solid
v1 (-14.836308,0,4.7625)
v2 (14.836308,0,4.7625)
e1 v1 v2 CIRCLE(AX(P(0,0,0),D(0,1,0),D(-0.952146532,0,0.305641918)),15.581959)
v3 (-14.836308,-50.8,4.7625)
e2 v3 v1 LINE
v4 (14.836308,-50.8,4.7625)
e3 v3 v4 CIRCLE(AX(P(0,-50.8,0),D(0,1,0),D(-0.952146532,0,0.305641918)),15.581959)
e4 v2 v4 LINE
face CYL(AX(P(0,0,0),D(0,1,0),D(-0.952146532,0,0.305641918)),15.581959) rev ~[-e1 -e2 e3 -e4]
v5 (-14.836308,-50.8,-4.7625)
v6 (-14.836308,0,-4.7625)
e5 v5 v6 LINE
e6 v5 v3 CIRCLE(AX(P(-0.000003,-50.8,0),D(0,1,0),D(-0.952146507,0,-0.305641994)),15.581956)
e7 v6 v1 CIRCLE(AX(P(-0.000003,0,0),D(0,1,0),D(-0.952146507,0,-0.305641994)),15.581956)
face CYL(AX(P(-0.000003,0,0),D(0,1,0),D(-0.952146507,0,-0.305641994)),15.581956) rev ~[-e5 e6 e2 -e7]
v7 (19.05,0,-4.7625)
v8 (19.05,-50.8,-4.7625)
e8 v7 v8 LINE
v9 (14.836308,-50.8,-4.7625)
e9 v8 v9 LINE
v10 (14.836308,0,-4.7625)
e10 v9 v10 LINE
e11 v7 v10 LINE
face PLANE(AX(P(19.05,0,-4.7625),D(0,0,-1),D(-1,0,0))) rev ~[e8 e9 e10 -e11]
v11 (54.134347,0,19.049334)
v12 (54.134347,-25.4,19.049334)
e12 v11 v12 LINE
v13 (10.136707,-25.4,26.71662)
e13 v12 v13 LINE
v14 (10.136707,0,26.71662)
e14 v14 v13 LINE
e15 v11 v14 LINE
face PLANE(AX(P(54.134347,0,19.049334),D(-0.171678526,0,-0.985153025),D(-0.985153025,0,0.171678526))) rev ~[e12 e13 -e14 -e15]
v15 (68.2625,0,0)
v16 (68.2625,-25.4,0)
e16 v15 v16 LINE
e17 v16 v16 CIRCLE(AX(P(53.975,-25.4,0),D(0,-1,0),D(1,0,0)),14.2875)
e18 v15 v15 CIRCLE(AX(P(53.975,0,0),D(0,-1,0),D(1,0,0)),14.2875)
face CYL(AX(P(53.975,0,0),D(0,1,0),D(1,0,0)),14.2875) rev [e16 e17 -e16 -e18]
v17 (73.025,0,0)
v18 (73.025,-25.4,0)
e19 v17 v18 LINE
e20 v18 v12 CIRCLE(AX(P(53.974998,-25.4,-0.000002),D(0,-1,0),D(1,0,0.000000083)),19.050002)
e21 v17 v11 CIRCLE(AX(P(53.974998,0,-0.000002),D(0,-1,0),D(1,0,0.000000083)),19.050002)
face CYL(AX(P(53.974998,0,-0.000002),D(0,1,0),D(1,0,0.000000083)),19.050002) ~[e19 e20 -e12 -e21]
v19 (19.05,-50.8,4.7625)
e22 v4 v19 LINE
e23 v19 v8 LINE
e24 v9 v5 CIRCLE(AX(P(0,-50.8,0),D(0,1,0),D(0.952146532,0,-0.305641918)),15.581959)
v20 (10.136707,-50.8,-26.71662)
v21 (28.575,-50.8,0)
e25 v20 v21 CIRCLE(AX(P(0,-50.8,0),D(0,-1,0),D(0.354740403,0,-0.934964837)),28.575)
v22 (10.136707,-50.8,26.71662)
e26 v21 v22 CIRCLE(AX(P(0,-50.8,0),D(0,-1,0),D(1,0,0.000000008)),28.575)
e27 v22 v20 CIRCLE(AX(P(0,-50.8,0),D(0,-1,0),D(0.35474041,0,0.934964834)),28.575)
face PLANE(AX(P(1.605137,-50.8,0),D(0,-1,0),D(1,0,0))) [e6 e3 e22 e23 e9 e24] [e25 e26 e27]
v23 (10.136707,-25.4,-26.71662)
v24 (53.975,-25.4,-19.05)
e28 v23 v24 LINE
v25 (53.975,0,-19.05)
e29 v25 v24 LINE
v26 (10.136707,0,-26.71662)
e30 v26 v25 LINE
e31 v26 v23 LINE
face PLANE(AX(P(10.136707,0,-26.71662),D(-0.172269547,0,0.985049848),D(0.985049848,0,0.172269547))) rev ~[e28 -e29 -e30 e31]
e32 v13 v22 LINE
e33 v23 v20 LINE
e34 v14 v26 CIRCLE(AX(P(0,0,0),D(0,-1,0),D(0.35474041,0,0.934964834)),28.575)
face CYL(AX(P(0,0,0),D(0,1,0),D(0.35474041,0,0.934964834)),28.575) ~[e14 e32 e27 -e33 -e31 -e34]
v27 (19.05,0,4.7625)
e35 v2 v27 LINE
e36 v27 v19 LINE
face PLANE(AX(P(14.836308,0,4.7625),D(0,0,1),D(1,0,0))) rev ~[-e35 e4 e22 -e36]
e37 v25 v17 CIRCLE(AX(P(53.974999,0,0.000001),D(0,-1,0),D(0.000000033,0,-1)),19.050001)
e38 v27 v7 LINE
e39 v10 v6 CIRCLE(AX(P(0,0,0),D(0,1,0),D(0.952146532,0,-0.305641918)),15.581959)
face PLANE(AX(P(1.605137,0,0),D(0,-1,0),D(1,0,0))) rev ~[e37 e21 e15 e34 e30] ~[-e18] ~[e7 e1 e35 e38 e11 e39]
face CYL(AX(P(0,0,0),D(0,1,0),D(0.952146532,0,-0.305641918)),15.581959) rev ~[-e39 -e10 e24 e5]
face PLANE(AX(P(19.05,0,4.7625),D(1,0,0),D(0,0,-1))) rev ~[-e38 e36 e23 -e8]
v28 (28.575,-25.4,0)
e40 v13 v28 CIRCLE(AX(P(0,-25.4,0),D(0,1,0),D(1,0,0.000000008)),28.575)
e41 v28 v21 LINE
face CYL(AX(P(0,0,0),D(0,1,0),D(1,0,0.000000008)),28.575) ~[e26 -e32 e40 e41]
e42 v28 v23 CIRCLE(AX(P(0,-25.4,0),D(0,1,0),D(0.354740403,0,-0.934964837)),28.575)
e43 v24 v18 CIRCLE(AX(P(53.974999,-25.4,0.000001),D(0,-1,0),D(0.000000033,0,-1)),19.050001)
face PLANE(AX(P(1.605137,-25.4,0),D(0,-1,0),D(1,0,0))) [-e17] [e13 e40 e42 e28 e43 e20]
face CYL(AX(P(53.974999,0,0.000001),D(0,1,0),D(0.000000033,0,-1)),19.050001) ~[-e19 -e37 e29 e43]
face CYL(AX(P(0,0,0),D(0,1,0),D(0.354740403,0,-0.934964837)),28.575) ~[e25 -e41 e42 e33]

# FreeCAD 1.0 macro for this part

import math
import FreeCAD as App
import Part
import Sketcher
Q = App.Units.Quantity

doc = App.newDocument("Part")
body = doc.addObject("PartDesign::Body", "Body")

sketch1 = body.newObject("Sketcher::SketchObject", "Sketch")
sketch1.AttachmentSupport = (doc.getObject("XZ_Plane"), [""])
sketch1.MapMode = "FlatFace"
sketch1.addGeometry(Part.ArcOfCircle(Part.Circle(App.Vector(0, 0, 0), App.Vector(0, 0, 1), 28.575), math.radians(69.222464), math.radians(290.777536)), False)
sketch1.addGeometry(Part.LineSegment(App.Vector(10.136707, -26.71662, 0), App.Vector(53.975, -19.05, 0)), False)
sketch1.addGeometry(Part.ArcOfCircle(Part.Circle(App.Vector(53.974999, 0.000001, 0), App.Vector(0, 0, 1), 19.050001), math.radians(-89.999998), math.radians(-0.000002)), False)
sketch1.addGeometry(Part.ArcOfCircle(Part.Circle(App.Vector(53.974998, -0.000002, 0), App.Vector(0, 0, 1), 19.050002), math.radians(0.000005), math.radians(89.520728)), False)
sketch1.addGeometry(Part.LineSegment(App.Vector(54.134347, 19.049334, 0), App.Vector(10.136707, 26.71662, 0)), False)
sketch1.addGeometry(Part.ArcOfCircle(Part.Circle(App.Vector(0, 0, 0), App.Vector(0, 0, 1), 15.581959), math.radians(17.796787), math.radians(162.203213)), False)
sketch1.addGeometry(Part.LineSegment(App.Vector(14.836308, 4.7625, 0), App.Vector(19.05, 4.7625, 0)), False)
sketch1.addGeometry(Part.LineSegment(App.Vector(19.05, 4.7625, 0), App.Vector(19.05, -4.7625, 0)), False)
sketch1.addGeometry(Part.LineSegment(App.Vector(19.05, -4.7625, 0), App.Vector(14.836308, -4.7625, 0)), False)
sketch1.addGeometry(Part.ArcOfCircle(Part.Circle(App.Vector(0, 0, 0), App.Vector(0, 0, 1), 15.581959), math.radians(-162.203213), math.radians(-17.796787)), False)
sketch1.addGeometry(Part.ArcOfCircle(Part.Circle(App.Vector(-0.000003, 0, 0), App.Vector(0, 0, 1), 15.581956), math.radians(162.203208), math.radians(197.796792)), False)
sketch1.addGeometry(Part.Circle(App.Vector(53.975, 0, 0), App.Vector(0, 0, 1), 14.2875), False)
sketch1.addConstraint(Sketcher.Constraint("Coincident", 0, 2, 1, 1))
sketch1.addConstraint(Sketcher.Constraint("Coincident", 1, 2, 2, 1))
sketch1.addConstraint(Sketcher.Constraint("Tangent", 2, 2, 3, 1))
sketch1.addConstraint(Sketcher.Constraint("Coincident", 3, 2, 4, 1))
sketch1.addConstraint(Sketcher.Constraint("Coincident", 4, 2, 0, 1))
sketch1.addConstraint(Sketcher.Constraint("Coincident", 5, 1, 6, 1))
sketch1.addConstraint(Sketcher.Constraint("Coincident", 6, 2, 7, 1))
sketch1.addConstraint(Sketcher.Constraint("Coincident", 7, 2, 8, 1))
sketch1.addConstraint(Sketcher.Constraint("Coincident", 8, 2, 9, 2))
sketch1.addConstraint(Sketcher.Constraint("Tangent", 9, 1, 10, 2))
sketch1.addConstraint(Sketcher.Constraint("Tangent", 10, 1, 5, 2))
sketch1.addConstraint(Sketcher.Constraint("Horizontal", 6))
sketch1.addConstraint(Sketcher.Constraint("Vertical", 7))
sketch1.addConstraint(Sketcher.Constraint("Horizontal", 8))
sketch1.addConstraint(Sketcher.Constraint("Coincident", 0, 3, -1, 1))
sketch1.addConstraint(Sketcher.Constraint("Coincident", 5, 3, -1, 1))
sketch1.addConstraint(Sketcher.Constraint("Coincident", 9, 3, -1, 1))
sketch1.addConstraint(Sketcher.Constraint("Coincident", 11, 3, 2, 3))
sketch1.addConstraint(Sketcher.Constraint("Equal", 2, 3))
sketch1.addConstraint(Sketcher.Constraint("PointOnObject", 2, 3, -1))
sketch1.addConstraint(Sketcher.Constraint("PointOnObject", 2, 2, -1))
sketch1.addConstraint(Sketcher.Constraint("Horizontal", 8, 2, 9, 1))
sketch1.addConstraint(Sketcher.Constraint("Horizontal", 6, 2, 10, 1))
sketch1.addConstraint(Sketcher.Constraint("Vertical", 11, 3, 1, 2))
sketch1.addConstraint(Sketcher.Constraint("Vertical", 0, 2, 4, 2))
sketch1.addConstraint(Sketcher.Constraint("Vertical", 5, 1, 8, 2))
sketch1.addConstraint(Sketcher.Constraint("Radius", 2, Q("0.75 in")))
sketch1.addConstraint(Sketcher.Constraint("Diameter", 11, Q("1.125 in")))
sketch1.addConstraint(Sketcher.Constraint("Radius", 0, Q("1.125 in")))
sketch1.addConstraint(Sketcher.Constraint("DistanceY", 7, 2, 7, 1, Q("0.375 in")))
sketch1.addConstraint(Sketcher.Constraint("DistanceX", -1, 1, 6, 2, Q("0.75 in")))
sketch1.addConstraint(Sketcher.Constraint("DistanceX", -1, 1, 2, 3, Q("2.125 in")))
sketch1.addConstraint(Sketcher.Constraint("Radius", 5, Q("15.581959 mm")))
sketch1.addConstraint(Sketcher.Constraint("DistanceX", 4, 2, 5, 1, Q("4.699601 mm")))
sketch1.addConstraint(Sketcher.Constraint("DistanceX", 3, 3, 3, 2, Q("0.159349 mm")))
pad1 = body.newObject("PartDesign::Pad", "Pad")
pad1.Profile = sketch1
pad1.Length = Q("1 in")

sketch2 = body.newObject("Sketcher::SketchObject", "Sketch001")
sketch2.AttachmentSupport = (doc.getObject("XZ_Plane"), [""])
sketch2.MapMode = "FlatFace"
sketch2.addGeometry(Part.ArcOfCircle(Part.Circle(App.Vector(0, 0, 0), App.Vector(0, 0, 1), 28.575), math.radians(-69.222465), math.radians(0)), False)
sketch2.addGeometry(Part.ArcOfCircle(Part.Circle(App.Vector(0, 0, 0), App.Vector(0, 0, 1), 28.575), math.radians(0), math.radians(69.222465)), False)
sketch2.addGeometry(Part.ArcOfCircle(Part.Circle(App.Vector(0, 0, 0), App.Vector(0, 0, 1), 28.575), math.radians(69.222464), math.radians(290.777536)), False)
sketch2.addGeometry(Part.ArcOfCircle(Part.Circle(App.Vector(0, 0, 0), App.Vector(0, 0, 1), 15.581959), math.radians(-162.203213), math.radians(-17.796787)), False)
sketch2.addGeometry(Part.ArcOfCircle(Part.Circle(App.Vector(-0.000003, 0, 0), App.Vector(0, 0, 1), 15.581956), math.radians(162.203208), math.radians(197.796792)), False)
sketch2.addGeometry(Part.ArcOfCircle(Part.Circle(App.Vector(0, 0, 0), App.Vector(0, 0, 1), 15.581959), math.radians(17.796787), math.radians(162.203213)), False)
sketch2.addGeometry(Part.LineSegment(App.Vector(14.836308, 4.7625, 0), App.Vector(19.05, 4.7625, 0)), False)
sketch2.addGeometry(Part.LineSegment(App.Vector(19.05, 4.7625, 0), App.Vector(19.05, -4.7625, 0)), False)
sketch2.addGeometry(Part.LineSegment(App.Vector(19.05, -4.7625, 0), App.Vector(14.836308, -4.7625, 0)), False)
sketch2.addConstraint(Sketcher.Constraint("Tangent", 0, 2, 1, 1))
sketch2.addConstraint(Sketcher.Constraint("Tangent", 1, 2, 2, 1))
sketch2.addConstraint(Sketcher.Constraint("Tangent", 2, 2, 0, 1))
sketch2.addConstraint(Sketcher.Constraint("Tangent", 3, 1, 4, 2))
sketch2.addConstraint(Sketcher.Constraint("Tangent", 4, 1, 5, 2))
sketch2.addConstraint(Sketcher.Constraint("Coincident", 5, 1, 6, 1))
sketch2.addConstraint(Sketcher.Constraint("Coincident", 6, 2, 7, 1))
sketch2.addConstraint(Sketcher.Constraint("Coincident", 7, 2, 8, 1))
sketch2.addConstraint(Sketcher.Constraint("Coincident", 8, 2, 3, 2))
sketch2.addConstraint(Sketcher.Constraint("Horizontal", 6))
sketch2.addConstraint(Sketcher.Constraint("Vertical", 7))
sketch2.addConstraint(Sketcher.Constraint("Horizontal", 8))
sketch2.addConstraint(Sketcher.Constraint("Coincident", 0, 3, -1, 1))
sketch2.addConstraint(Sketcher.Constraint("Coincident", 3, 3, -1, 1))
sketch2.addConstraint(Sketcher.Constraint("Coincident", 5, 3, -1, 1))
sketch2.addConstraint(Sketcher.Constraint("PointOnObject", 0, 2, -1))
sketch2.addConstraint(Sketcher.Constraint("Horizontal", 4, 1, 5, 1))
sketch2.addConstraint(Sketcher.Constraint("Horizontal", 3, 1, 7, 2))
sketch2.addConstraint(Sketcher.Constraint("Vertical", 1, 2, 2, 2))
sketch2.addConstraint(Sketcher.Constraint("Vertical", 3, 1, 4, 1))
sketch2.addConstraint(Sketcher.Constraint("Radius", 0, Q("1.125 in")))
sketch2.addConstraint(Sketcher.Constraint("DistanceY", 7, 2, 7, 1, Q("0.375 in")))
sketch2.addConstraint(Sketcher.Constraint("DistanceX", -1, 1, 6, 2, Q("0.75 in")))
sketch2.addConstraint(Sketcher.Constraint("Radius", 3, Q("15.581959 mm")))
sketch2.addConstraint(Sketcher.Constraint("DistanceY", -1, 1, 1, 2, Q("26.71662 mm")))
pad2 = body.newObject("PartDesign::Pad", "Pad001")
pad2.Profile = sketch2
pad2.Length = Q("2 in")

doc.recompute()
